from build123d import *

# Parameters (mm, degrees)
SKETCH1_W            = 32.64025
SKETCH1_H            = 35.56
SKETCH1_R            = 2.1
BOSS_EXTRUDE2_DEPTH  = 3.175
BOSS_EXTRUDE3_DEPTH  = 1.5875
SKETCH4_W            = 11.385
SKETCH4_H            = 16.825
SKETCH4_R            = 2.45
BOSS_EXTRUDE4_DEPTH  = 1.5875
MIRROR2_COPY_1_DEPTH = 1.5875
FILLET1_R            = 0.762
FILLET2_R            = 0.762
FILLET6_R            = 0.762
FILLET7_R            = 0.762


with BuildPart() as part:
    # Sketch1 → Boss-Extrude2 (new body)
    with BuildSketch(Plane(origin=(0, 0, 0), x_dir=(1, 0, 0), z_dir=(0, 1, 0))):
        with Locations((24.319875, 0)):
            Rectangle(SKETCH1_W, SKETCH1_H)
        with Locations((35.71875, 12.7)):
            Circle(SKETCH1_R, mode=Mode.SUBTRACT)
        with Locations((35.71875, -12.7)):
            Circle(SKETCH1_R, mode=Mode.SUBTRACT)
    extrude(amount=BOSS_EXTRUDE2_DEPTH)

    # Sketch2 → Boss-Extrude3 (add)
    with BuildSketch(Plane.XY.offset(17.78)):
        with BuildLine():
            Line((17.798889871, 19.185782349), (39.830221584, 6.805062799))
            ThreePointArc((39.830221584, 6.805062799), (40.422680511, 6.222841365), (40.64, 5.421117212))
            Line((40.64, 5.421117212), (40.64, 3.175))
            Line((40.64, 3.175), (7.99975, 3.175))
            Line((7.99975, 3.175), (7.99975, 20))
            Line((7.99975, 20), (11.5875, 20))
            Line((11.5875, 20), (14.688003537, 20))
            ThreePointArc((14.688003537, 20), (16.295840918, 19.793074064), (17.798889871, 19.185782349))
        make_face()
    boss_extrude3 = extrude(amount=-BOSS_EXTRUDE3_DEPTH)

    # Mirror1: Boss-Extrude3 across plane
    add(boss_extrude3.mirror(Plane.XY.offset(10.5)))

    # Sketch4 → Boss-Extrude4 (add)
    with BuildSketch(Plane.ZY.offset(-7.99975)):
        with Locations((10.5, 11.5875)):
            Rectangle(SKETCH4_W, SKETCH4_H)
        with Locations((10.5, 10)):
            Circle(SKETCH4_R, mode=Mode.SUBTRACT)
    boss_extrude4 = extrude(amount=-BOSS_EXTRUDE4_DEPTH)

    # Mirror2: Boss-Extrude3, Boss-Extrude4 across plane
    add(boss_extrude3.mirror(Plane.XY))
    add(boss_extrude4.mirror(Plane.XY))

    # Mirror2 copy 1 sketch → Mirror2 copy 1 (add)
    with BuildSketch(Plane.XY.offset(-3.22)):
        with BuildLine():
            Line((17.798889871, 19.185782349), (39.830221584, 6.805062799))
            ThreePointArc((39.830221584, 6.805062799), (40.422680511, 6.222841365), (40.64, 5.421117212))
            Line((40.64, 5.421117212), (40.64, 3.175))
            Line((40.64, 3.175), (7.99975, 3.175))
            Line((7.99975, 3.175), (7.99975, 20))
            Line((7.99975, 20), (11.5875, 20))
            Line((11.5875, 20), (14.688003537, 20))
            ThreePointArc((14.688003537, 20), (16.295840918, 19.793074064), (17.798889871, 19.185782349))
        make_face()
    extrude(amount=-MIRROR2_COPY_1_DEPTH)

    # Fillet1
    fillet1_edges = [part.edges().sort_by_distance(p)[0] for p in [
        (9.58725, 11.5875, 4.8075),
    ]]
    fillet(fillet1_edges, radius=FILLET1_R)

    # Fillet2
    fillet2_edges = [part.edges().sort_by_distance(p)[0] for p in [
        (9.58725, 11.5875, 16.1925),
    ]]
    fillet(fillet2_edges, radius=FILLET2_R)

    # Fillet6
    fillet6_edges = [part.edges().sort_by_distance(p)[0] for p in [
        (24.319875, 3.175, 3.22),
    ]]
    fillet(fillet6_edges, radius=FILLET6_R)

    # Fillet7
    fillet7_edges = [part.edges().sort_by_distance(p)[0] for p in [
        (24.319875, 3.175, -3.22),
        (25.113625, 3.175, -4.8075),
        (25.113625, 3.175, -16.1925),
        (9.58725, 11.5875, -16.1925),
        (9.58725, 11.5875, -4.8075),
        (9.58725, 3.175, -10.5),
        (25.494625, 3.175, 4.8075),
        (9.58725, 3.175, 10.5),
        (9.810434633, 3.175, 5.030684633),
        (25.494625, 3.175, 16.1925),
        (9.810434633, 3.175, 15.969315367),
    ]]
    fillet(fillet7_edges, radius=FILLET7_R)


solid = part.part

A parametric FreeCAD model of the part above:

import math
import FreeCAD as App
import Part
import Sketcher
Q = App.Units.Quantity


def edges_at(feature, points):
    """Names of the edges that pass closest to the given points."""
    edges = feature.Shape.Edges
    near = lambda p: min(range(len(edges)), key=lambda i: edges[i].distToShape(Part.Vertex(*p))[0])
    return sorted({f"Edge{near(p) + 1}" for p in points})

doc = App.newDocument("Part")
params = doc.addObject("Spreadsheet::Sheet", "Params")
for row, (alias, value) in enumerate([
    ("sketch1_height", "1.4 in"),
    ("pad1_length", "0.125 in"),
    ("sketch2_radius", "0.25 in"),
    ("sketch2_radius2", "0.0625 in"),
    ("pad2_length", "0.0625 in"),
    ("pad3_length", "0.0625 in"),
    ("sketch4_radius", "0.25 in"),
    ("sketch4_radius2", "0.0625 in"),
    ("pad4_length", "0.0625 in"),
    ("fillet_radius", "0.03 in"),
    ("fillet2_radius", "0.03 in"),
    ("fillet3_radius", "0.03 in"),
    ("fillet4_radius", "0.03 in"),
], start=1):
    params.set(f"A{row}", alias)
    params.set(f"B{row}", "=" + value)
    params.setAlias(f"B{row}", alias)

body = doc.addObject("PartDesign::Body", "Body")

# Sketch on XZ plane
sketch1 = body.newObject("Sketcher::SketchObject", "Sketch")
sketch1.AttachmentSupport = (doc.getObject("XZ_Plane"), [""])
sketch1.MapMode = "FlatFace"
sketch1.addGeometry(Part.LineSegment(App.Vector(8, -17.8, 0), App.Vector(8, 17.8, 0)), False)
sketch1.addGeometry(Part.LineSegment(App.Vector(8, 17.8, 0), App.Vector(40.6, 17.8, 0)), False)
sketch1.addGeometry(Part.LineSegment(App.Vector(40.6, 17.8, 0), App.Vector(40.6, -17.8, 0)), False)
sketch1.addGeometry(Part.LineSegment(App.Vector(40.6, -17.8, 0), App.Vector(8, -17.8, 0)), False)
sketch1.addGeometry(Part.Circle(App.Vector(35.7, 12.7, 0), App.Vector(0, 0, 1), 2.1), False)
sketch1.addGeometry(Part.Circle(App.Vector(35.7, -12.7, 0), App.Vector(0, 0, 1), 2.1), False)
sketch1.addConstraint(Sketcher.Constraint("Coincident", 0, 2, 1, 1))
sketch1.addConstraint(Sketcher.Constraint("Coincident", 1, 2, 2, 1))
sketch1.addConstraint(Sketcher.Constraint("Coincident", 2, 2, 3, 1))
sketch1.addConstraint(Sketcher.Constraint("Coincident", 3, 2, 0, 1))
sketch1.addConstraint(Sketcher.Constraint("Vertical", 0))
sketch1.addConstraint(Sketcher.Constraint("Horizontal", 1))
sketch1.addConstraint(Sketcher.Constraint("Vertical", 2))
sketch1.addConstraint(Sketcher.Constraint("Horizontal", 3))
sketch1.addConstraint(Sketcher.Constraint("Equal", 4, 5))
sketch1.addConstraint(Sketcher.Constraint("Symmetric", 4, 3, 5, 3, -1))
sketch1.addConstraint(Sketcher.Constraint("DistanceY", 0, 1, 0, 2, Q("1.4 in")))
sketch1.addConstraint(Sketcher.Constraint("DistanceY", 5, 3, 4, 3, Q("1 in")))
sketch1.addConstraint(Sketcher.Constraint("DistanceY", -1, 1, 0, 2, Q("0.7 in")))
sketch1.addConstraint(Sketcher.Constraint("DistanceX", -1, 1, 1, 2, Q("1.6 in")))
sketch1.addConstraint(Sketcher.Constraint("Diameter", 4, 4.2))
sketch1.addConstraint(Sketcher.Constraint("DistanceX", -1, 1, 4, 3, Q("1.40625 in")))
sketch1.addConstraint(Sketcher.Constraint("DistanceX", 1, 1, 1, 2, 32.64025))
sketch1.setExpression("Constraints[10]", "Params.sketch1_height")
pad1 = body.newObject("PartDesign::Pad", "Pad")
pad1.Profile = sketch1
pad1.setExpression("Length", "Params.pad1_length")
pad1.Reversed = True

# Sketch on XY plane
sketch2 = body.newObject("Sketcher::SketchObject", "Sketch001")
sketch2.AttachmentSupport = (doc.getObject("XY_Plane"), [""])
sketch2.MapMode = "FlatFace"
sketch2.AttachmentOffset = App.Placement(App.Vector(0, 0, 0.7 * 25.4), App.Rotation())
sketch2.addGeometry(Part.LineSegment(App.Vector(39.8, 6.8, 0), App.Vector(17.8, 19.2, 0)), False)
sketch2.addGeometry(Part.ArcOfCircle(Part.Circle(App.Vector(14.7, 13.7, 0), App.Vector(0, 0, 1), 6.3), math.radians(61), math.radians(90)), False)
sketch2.addGeometry(Part.LineSegment(App.Vector(14.7, 20, 0), App.Vector(8, 20, 0)), False)
sketch2.addGeometry(Part.LineSegment(App.Vector(8, 20, 0), App.Vector(8, 3.2, 0)), False)
sketch2.addGeometry(Part.LineSegment(App.Vector(8, 3.2, 0), App.Vector(40.6, 3.2, 0)), False)
sketch2.addGeometry(Part.LineSegment(App.Vector(40.6, 3.2, 0), App.Vector(40.6, 5.4, 0)), False)
sketch2.addGeometry(Part.ArcOfCircle(Part.Circle(App.Vector(39.1, 5.4, 0), App.Vector(0, 0, 1), 1.6), math.radians(0), math.radians(61)), False)
sketch2.addConstraint(Sketcher.Constraint("Tangent", 0, 2, 1, 1))
sketch2.addConstraint(Sketcher.Constraint("Tangent", 1, 2, 2, 1))
sketch2.addConstraint(Sketcher.Constraint("Coincident", 2, 2, 3, 1))
sketch2.addConstraint(Sketcher.Constraint("Coincident", 3, 2, 4, 1))
sketch2.addConstraint(Sketcher.Constraint("Coincident", 4, 2, 5, 1))
sketch2.addConstraint(Sketcher.Constraint("Tangent", 5, 2, 6, 1))
sketch2.addConstraint(Sketcher.Constraint("Tangent", 6, 2, 0, 1))
sketch2.addConstraint(Sketcher.Constraint("Horizontal", 2))
sketch2.addConstraint(Sketcher.Constraint("Vertical", 3))
sketch2.addConstraint(Sketcher.Constraint("Horizontal", 4))
sketch2.addConstraint(Sketcher.Constraint("Vertical", 5))
sketch2.addConstraint(Sketcher.Constraint("Radius", 1, Q("0.25 in")))
sketch2.addConstraint(Sketcher.Constraint("Radius", 6, Q("0.0625 in")))
sketch2.addConstraint(Sketcher.Constraint("DistanceX", -1, 1, 4, 2, Q("1.6 in")))
sketch2.addConstraint(Sketcher.Constraint("DistanceY", -1, 1, 3, 2, Q("0.125 in")))
sketch2.addConstraint(Sketcher.Constraint("DistanceY", 3, 2, 3, 1, 16.825))
sketch2.addConstraint(Sketcher.Constraint("DistanceX", 4, 1, 4, 2, 32.64025))
sketch2.addConstraint(Sketcher.Constraint("Distance", 0, 25.271759))
sketch2.addConstraint(Sketcher.Constraint("DistanceX", 2, 2, 2, 1, 6.688254))
sketch2.setExpression("Constraints[11]", "Params.sketch2_radius")
sketch2.setExpression("Constraints[12]", "Params.sketch2_radius2")
pad2 = body.newObject("PartDesign::Pad", "Pad001")
pad2.Profile = sketch2
pad2.setExpression("Length", "Params.pad2_length")
pad2.Reversed = True
doc.recompute()

datumplane = body.newObject("PartDesign::Plane", "DatumPlane")
datumplane.AttachmentSupport = (doc.getObject("XY_Plane"), [""])
datumplane.MapMode = "FlatFace"
datumplane.AttachmentOffset = App.Placement(App.Vector(0, 0, 10.5), App.Rotation())
mirrored = body.newObject("PartDesign::Mirrored", "Mirrored")
mirrored.Originals = [pad2]
mirrored.MirrorPlane = (datumplane, [""])
body.Tip = mirrored

# Sketch on YZ plane
sketch3 = body.newObject("Sketcher::SketchObject", "Sketch002")
sketch3.AttachmentSupport = (doc.getObject("YZ_Plane"), [""])
sketch3.MapMode = "FlatFace"
sketch3.AttachmentOffset = App.Placement(App.Vector(0, 0, 7.99975), App.Rotation())
sketch3.addGeometry(Part.LineSegment(App.Vector(20, 4.8, 0), App.Vector(3.2, 4.8, 0)), False)
sketch3.addGeometry(Part.LineSegment(App.Vector(3.2, 4.8, 0), App.Vector(3.2, 16.2, 0)), False)
sketch3.addGeometry(Part.LineSegment(App.Vector(3.2, 16.2, 0), App.Vector(20, 16.2, 0)), False)
sketch3.addGeometry(Part.LineSegment(App.Vector(20, 16.2, 0), App.Vector(20, 4.8, 0)), False)
sketch3.addGeometry(Part.Circle(App.Vector(10, 10.5, 0), App.Vector(0, 0, 1), 2.5), False)
sketch3.addConstraint(Sketcher.Constraint("Coincident", 0, 2, 1, 1))
sketch3.addConstraint(Sketcher.Constraint("Coincident", 1, 2, 2, 1))
sketch3.addConstraint(Sketcher.Constraint("Coincident", 2, 2, 3, 1))
sketch3.addConstraint(Sketcher.Constraint("Coincident", 3, 2, 0, 1))
sketch3.addConstraint(Sketcher.Constraint("Horizontal", 0))
sketch3.addConstraint(Sketcher.Constraint("Vertical", 1))
sketch3.addConstraint(Sketcher.Constraint("Horizontal", 2))
sketch3.addConstraint(Sketcher.Constraint("Vertical", 3))
sketch3.addConstraint(Sketcher.Constraint("Diameter", 4, 4.9))
sketch3.addConstraint(Sketcher.Constraint("DistanceX", -1, 1, 0, 2, Q("0.125 in")))
sketch3.addConstraint(Sketcher.Constraint("DistanceX", 0, 2, 0, 1, 16.825))
sketch3.addConstraint(Sketcher.Constraint("DistanceY", 1, 1, 1, 2, 11.385))
sketch3.addConstraint(Sketcher.Constraint("DistanceY", -1, 1, 1, 2, Q("0.6375 in")))
sketch3.addConstraint(Sketcher.Constraint("DistanceX", -1, 1, 4, 3, 10.0))
sketch3.addConstraint(Sketcher.Constraint("DistanceY", -1, 1, 4, 3, 10.5))
pad3 = body.newObject("PartDesign::Pad", "Pad002")
pad3.Profile = sketch3
pad3.setExpression("Length", "Params.pad3_length")
doc.recompute()

mirrored2 = body.newObject("PartDesign::Mirrored", "Mirrored001")
mirrored2.Originals = [pad2, pad3]
mirrored2.MirrorPlane = (doc.getObject("XY_Plane"), [""])
body.Tip = mirrored2

# Sketch on XY plane
sketch4 = body.newObject("Sketcher::SketchObject", "Sketch003")
sketch4.AttachmentSupport = (doc.getObject("XY_Plane"), [""])
sketch4.MapMode = "FlatFace"
sketch4.AttachmentOffset = App.Placement(App.Vector(0, 0, -3.22), App.Rotation())
sketch4.addGeometry(Part.LineSegment(App.Vector(39.8, 6.8, 0), App.Vector(17.8, 19.2, 0)), False)
sketch4.addGeometry(Part.ArcOfCircle(Part.Circle(App.Vector(14.7, 13.7, 0), App.Vector(0, 0, 1), 6.3), math.radians(61), math.radians(90)), False)
sketch4.addGeometry(Part.LineSegment(App.Vector(14.7, 20, 0), App.Vector(8, 20, 0)), False)
sketch4.addGeometry(Part.LineSegment(App.Vector(8, 20, 0), App.Vector(8, 3.2, 0)), False)
sketch4.addGeometry(Part.LineSegment(App.Vector(8, 3.2, 0), App.Vector(40.6, 3.2, 0)), False)
sketch4.addGeometry(Part.LineSegment(App.Vector(40.6, 3.2, 0), App.Vector(40.6, 5.4, 0)), False)
sketch4.addGeometry(Part.ArcOfCircle(Part.Circle(App.Vector(39.1, 5.4, 0), App.Vector(0, 0, 1), 1.6), math.radians(0), math.radians(61)), False)
sketch4.addConstraint(Sketcher.Constraint("Tangent", 0, 2, 1, 1))
sketch4.addConstraint(Sketcher.Constraint("Tangent", 1, 2, 2, 1))
sketch4.addConstraint(Sketcher.Constraint("Coincident", 2, 2, 3, 1))
sketch4.addConstraint(Sketcher.Constraint("Coincident", 3, 2, 4, 1))
sketch4.addConstraint(Sketcher.Constraint("Coincident", 4, 2, 5, 1))
sketch4.addConstraint(Sketcher.Constraint("Tangent", 5, 2, 6, 1))
sketch4.addConstraint(Sketcher.Constraint("Tangent", 6, 2, 0, 1))
sketch4.addConstraint(Sketcher.Constraint("Horizontal", 2))
sketch4.addConstraint(Sketcher.Constraint("Vertical", 3))
sketch4.addConstraint(Sketcher.Constraint("Horizontal", 4))
sketch4.addConstraint(Sketcher.Constraint("Vertical", 5))
sketch4.addConstraint(Sketcher.Constraint("Radius", 1, Q("0.25 in")))
sketch4.addConstraint(Sketcher.Constraint("Radius", 6, Q("0.0625 in")))
sketch4.addConstraint(Sketcher.Constraint("DistanceX", -1, 1, 4, 2, Q("1.6 in")))
sketch4.addConstraint(Sketcher.Constraint("DistanceY", -1, 1, 3, 2, Q("0.125 in")))
sketch4.addConstraint(Sketcher.Constraint("DistanceY", 3, 2, 3, 1, 16.825))
sketch4.addConstraint(Sketcher.Constraint("DistanceX", 4, 1, 4, 2, 32.64025))
sketch4.addConstraint(Sketcher.Constraint("Distance", 0, 25.271759))
sketch4.addConstraint(Sketcher.Constraint("DistanceX", 2, 2, 2, 1, 6.688254))
sketch4.setExpression("Constraints[11]", "Params.sketch4_radius")
sketch4.setExpression("Constraints[12]", "Params.sketch4_radius2")
pad4 = body.newObject("PartDesign::Pad", "Pad003")
pad4.Profile = sketch4
pad4.setExpression("Length", "Params.pad4_length")
pad4.Reversed = True
doc.recompute()

fillet = body.newObject("PartDesign::Fillet", "Fillet")
fillet.Base = (pad4, edges_at(pad4, [(9.587, 11.588, 4.808)]))
fillet.setExpression("Radius", "Params.fillet_radius")
doc.recompute()

fillet2 = body.newObject("PartDesign::Fillet", "Fillet001")
fillet2.Base = (fillet, edges_at(fillet, [(9.587, 11.588, 16.192)]))
fillet2.setExpression("Radius", "Params.fillet2_radius")
doc.recompute()

fillet3 = body.newObject("PartDesign::Fillet", "Fillet002")
fillet3.Base = (fillet2, edges_at(fillet2, [(24.32, 3.175, 3.22)]))
fillet3.setExpression("Radius", "Params.fillet3_radius")
doc.recompute()

fillet4 = body.newObject("PartDesign::Fillet", "Fillet003")
fillet4.Base = (fillet3, edges_at(fillet3, [
    (24.32, 3.175, -3.22),
    (25.114, 3.175, -4.808),
    (25.114, 3.175, -16.192),
    (9.587, 11.588, -16.192),
    (9.587, 11.588, -4.808),
    (9.587, 3.175, -10.5),
    (25.495, 3.175, 4.808),
    (9.587, 3.175, 10.5),
    (9.81, 3.175, 5.031),
    (25.495, 3.175, 16.192),
    (9.81, 3.175, 15.969),
]))
fillet4.setExpression("Radius", "Params.fillet4_radius")

doc.recompute()
